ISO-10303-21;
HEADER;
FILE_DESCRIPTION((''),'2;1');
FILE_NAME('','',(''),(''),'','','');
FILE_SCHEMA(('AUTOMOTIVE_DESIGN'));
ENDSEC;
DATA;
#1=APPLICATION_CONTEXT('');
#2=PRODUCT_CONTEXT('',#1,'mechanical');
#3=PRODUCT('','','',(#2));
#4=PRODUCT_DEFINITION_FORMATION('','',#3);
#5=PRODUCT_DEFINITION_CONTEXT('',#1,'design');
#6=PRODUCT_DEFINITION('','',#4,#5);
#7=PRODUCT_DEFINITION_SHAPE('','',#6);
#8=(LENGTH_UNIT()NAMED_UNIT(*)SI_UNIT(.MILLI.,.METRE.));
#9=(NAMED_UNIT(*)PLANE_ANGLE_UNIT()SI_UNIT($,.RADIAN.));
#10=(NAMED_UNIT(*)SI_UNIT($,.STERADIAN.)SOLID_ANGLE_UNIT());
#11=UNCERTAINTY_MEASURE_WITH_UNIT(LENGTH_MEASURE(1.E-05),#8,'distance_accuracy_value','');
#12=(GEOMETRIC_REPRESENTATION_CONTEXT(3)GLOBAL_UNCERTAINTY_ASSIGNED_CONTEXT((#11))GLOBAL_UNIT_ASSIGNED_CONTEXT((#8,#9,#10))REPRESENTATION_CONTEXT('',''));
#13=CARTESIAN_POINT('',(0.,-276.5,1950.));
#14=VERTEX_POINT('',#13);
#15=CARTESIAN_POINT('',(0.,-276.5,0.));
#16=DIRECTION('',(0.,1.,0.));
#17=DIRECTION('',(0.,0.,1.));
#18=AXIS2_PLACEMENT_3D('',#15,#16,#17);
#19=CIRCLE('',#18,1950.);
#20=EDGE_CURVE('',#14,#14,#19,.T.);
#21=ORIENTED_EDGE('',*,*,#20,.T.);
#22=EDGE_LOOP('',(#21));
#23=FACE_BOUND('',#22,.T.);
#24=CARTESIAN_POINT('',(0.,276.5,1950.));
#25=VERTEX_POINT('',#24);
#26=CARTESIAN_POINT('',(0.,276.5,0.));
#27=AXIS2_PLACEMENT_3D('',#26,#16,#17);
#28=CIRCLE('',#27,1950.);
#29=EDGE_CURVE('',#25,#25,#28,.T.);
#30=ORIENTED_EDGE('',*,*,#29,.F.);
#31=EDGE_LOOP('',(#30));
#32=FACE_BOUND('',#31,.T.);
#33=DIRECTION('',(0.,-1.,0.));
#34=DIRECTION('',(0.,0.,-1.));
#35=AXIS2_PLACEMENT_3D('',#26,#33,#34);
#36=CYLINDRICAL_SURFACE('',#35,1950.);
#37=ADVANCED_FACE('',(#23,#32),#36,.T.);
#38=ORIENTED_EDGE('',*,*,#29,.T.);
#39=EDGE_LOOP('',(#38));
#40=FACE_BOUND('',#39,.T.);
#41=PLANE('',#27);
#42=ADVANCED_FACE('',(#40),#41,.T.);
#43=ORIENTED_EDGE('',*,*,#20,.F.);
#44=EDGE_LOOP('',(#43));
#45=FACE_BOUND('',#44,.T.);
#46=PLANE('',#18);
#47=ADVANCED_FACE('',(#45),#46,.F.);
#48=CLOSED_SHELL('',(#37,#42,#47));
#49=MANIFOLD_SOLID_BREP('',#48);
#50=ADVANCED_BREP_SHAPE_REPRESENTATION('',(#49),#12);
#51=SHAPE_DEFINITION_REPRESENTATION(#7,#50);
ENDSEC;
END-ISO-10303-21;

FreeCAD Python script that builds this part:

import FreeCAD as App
import Part
import Sketcher
Q = App.Units.Quantity

doc = App.newDocument("Part")
body = doc.addObject("PartDesign::Body", "Body")

# Sketch on XZ plane
sketch1 = body.newObject("Sketcher::SketchObject", "Sketch")
sketch1.AttachmentSupport = (doc.getObject("XZ_Plane"), [""])
sketch1.MapMode = "FlatFace"
sketch1.addGeometry(Part.Circle(App.Vector(0, 0, 0), App.Vector(0, 0, 1), 1950), False)
sketch1.addConstraint([
    Sketcher.Constraint("Coincident", 0, 3, -1, 1),
    Sketcher.Constraint("Diameter", 0, Q("3900 mm")),
])
pad1 = body.newObject("PartDesign::Pad", "Pad")
pad1.Profile = sketch1
pad1.Length = 553
pad1.Midplane = True

doc.recompute()
